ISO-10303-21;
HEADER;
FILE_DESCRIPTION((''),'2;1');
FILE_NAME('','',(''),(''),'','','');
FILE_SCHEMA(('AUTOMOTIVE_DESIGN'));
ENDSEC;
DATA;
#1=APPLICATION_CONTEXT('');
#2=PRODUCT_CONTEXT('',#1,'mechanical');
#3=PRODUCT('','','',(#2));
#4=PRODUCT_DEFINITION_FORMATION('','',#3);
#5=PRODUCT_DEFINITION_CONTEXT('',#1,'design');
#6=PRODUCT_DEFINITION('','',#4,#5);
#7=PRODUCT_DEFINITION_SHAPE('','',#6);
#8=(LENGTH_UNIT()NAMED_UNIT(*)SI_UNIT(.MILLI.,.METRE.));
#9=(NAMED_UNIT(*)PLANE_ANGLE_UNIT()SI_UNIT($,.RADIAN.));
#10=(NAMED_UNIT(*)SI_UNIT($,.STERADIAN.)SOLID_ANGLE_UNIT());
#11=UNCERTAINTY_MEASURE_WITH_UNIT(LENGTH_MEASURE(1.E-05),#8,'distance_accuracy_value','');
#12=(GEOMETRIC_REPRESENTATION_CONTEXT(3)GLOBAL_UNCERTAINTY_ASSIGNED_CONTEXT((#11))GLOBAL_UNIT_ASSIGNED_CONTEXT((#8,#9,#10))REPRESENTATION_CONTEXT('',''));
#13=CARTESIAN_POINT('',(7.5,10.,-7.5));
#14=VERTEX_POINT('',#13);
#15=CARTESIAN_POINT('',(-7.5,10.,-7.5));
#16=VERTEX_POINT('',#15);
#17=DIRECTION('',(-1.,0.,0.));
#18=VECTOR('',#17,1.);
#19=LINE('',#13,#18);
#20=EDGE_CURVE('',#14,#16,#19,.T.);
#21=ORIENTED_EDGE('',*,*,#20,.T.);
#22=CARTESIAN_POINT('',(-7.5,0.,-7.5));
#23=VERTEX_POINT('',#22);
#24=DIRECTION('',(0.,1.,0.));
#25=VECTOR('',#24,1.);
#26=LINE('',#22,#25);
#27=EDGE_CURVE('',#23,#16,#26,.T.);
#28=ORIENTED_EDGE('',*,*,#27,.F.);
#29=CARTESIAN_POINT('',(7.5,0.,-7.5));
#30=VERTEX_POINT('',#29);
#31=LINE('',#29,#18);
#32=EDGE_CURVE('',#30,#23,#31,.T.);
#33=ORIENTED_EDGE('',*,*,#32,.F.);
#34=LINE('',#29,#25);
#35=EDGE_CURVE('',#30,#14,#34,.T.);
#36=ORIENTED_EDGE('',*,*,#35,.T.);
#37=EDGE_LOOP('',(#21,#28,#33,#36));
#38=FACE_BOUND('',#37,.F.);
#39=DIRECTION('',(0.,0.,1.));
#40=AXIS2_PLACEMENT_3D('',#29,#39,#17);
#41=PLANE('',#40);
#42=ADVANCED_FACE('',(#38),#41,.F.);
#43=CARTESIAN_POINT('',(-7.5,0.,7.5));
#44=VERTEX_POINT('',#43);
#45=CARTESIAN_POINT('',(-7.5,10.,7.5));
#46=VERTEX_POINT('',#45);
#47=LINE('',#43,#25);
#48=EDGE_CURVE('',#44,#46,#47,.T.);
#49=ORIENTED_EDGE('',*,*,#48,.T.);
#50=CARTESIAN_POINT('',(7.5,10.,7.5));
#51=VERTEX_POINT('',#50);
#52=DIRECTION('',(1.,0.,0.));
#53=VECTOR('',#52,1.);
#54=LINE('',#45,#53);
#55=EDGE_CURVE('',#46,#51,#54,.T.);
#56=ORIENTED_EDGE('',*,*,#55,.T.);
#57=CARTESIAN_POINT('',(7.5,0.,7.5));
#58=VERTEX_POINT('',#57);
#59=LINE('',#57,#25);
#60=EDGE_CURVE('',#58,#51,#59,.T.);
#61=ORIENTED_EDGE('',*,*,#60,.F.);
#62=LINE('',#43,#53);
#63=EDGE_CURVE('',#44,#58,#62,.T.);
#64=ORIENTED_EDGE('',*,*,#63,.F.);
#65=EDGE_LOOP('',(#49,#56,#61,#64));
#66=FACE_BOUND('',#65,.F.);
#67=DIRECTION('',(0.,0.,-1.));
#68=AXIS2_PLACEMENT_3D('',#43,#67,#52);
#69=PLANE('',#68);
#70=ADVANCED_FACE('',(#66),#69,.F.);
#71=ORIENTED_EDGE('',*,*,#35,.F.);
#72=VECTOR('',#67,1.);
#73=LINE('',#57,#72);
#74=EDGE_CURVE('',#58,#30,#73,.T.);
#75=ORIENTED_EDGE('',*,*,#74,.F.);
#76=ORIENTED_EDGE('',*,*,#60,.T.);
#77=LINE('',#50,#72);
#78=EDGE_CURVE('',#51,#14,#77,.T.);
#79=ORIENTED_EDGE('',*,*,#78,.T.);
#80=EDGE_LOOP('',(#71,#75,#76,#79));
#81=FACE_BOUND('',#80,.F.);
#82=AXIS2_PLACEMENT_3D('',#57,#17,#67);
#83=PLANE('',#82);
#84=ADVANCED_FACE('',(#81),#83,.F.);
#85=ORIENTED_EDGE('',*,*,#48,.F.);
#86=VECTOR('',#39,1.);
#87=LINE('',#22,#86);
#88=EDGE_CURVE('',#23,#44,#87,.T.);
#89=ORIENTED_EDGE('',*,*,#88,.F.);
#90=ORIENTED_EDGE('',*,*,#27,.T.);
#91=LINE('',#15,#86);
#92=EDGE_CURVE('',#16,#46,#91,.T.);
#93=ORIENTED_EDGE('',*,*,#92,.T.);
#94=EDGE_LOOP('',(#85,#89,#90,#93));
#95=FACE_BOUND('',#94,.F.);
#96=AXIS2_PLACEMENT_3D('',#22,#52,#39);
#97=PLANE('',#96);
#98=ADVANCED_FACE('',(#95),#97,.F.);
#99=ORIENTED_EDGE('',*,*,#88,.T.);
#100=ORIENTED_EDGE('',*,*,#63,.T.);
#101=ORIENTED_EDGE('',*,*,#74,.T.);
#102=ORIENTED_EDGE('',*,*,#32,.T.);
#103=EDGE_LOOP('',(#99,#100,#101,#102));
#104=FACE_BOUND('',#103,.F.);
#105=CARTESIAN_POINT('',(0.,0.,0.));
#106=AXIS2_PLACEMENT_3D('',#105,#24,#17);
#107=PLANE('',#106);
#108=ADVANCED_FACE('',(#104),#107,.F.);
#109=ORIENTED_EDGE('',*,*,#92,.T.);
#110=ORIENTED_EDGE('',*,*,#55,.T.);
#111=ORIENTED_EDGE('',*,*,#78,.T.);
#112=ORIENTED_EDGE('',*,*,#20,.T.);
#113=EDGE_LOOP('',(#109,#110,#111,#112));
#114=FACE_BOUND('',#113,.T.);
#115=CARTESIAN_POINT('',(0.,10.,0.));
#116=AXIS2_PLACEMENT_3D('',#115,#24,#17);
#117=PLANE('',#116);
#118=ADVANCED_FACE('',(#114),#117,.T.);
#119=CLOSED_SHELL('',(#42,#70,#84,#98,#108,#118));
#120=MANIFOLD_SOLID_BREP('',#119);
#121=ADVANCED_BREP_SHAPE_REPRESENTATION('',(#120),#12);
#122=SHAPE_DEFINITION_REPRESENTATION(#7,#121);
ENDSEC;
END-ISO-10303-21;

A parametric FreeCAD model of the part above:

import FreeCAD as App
import Part
import Sketcher
from FreeCAD import Vector
Q = App.Units.Quantity

doc = App.newDocument("Part")
body = doc.addObject("PartDesign::Body", "Body")

# Sketch on XZ plane
sketch1 = body.newObject("Sketcher::SketchObject", "Sketch")
sketch1.AttachmentSupport = (doc.getObject("XZ_Plane"), [""])
sketch1.MapMode = "FlatFace"
sketch1.addGeometry([
    Part.LineSegment(Vector(8, 8, 0), Vector(8, -8, 0)),
    Part.LineSegment(Vector(8, -8, 0), Vector(-8, -8, 0)),
    Part.LineSegment(Vector(-8, -8, 0), Vector(-8, 8, 0)),
    Part.LineSegment(Vector(-8, 8, 0), Vector(8, 8, 0)),
], False)
sketch1.addConstraint([
    Sketcher.Constraint("Coincident", 0, 2, 1, 1),
    Sketcher.Constraint("Coincident", 1, 2, 2, 1),
    Sketcher.Constraint("Coincident", 2, 2, 3, 1),
    Sketcher.Constraint("Coincident", 3, 2, 0, 1),
    Sketcher.Constraint("Vertical", 0),
    Sketcher.Constraint("Horizontal", 1),
    Sketcher.Constraint("Vertical", 2),
    Sketcher.Constraint("Horizontal", 3),
    Sketcher.Constraint("Symmetric", 0, 2, 2, 2, -1, 1),
    Sketcher.Constraint("Equal", 3, 0),
    Sketcher.Constraint("DistanceX", 1, 2, 1, 1, Q("15 mm")),
])
pad1 = body.newObject("PartDesign::Pad", "Pad")
pad1.Profile = sketch1
pad1.Length = 10
pad1.Reversed = True

doc.recompute()
